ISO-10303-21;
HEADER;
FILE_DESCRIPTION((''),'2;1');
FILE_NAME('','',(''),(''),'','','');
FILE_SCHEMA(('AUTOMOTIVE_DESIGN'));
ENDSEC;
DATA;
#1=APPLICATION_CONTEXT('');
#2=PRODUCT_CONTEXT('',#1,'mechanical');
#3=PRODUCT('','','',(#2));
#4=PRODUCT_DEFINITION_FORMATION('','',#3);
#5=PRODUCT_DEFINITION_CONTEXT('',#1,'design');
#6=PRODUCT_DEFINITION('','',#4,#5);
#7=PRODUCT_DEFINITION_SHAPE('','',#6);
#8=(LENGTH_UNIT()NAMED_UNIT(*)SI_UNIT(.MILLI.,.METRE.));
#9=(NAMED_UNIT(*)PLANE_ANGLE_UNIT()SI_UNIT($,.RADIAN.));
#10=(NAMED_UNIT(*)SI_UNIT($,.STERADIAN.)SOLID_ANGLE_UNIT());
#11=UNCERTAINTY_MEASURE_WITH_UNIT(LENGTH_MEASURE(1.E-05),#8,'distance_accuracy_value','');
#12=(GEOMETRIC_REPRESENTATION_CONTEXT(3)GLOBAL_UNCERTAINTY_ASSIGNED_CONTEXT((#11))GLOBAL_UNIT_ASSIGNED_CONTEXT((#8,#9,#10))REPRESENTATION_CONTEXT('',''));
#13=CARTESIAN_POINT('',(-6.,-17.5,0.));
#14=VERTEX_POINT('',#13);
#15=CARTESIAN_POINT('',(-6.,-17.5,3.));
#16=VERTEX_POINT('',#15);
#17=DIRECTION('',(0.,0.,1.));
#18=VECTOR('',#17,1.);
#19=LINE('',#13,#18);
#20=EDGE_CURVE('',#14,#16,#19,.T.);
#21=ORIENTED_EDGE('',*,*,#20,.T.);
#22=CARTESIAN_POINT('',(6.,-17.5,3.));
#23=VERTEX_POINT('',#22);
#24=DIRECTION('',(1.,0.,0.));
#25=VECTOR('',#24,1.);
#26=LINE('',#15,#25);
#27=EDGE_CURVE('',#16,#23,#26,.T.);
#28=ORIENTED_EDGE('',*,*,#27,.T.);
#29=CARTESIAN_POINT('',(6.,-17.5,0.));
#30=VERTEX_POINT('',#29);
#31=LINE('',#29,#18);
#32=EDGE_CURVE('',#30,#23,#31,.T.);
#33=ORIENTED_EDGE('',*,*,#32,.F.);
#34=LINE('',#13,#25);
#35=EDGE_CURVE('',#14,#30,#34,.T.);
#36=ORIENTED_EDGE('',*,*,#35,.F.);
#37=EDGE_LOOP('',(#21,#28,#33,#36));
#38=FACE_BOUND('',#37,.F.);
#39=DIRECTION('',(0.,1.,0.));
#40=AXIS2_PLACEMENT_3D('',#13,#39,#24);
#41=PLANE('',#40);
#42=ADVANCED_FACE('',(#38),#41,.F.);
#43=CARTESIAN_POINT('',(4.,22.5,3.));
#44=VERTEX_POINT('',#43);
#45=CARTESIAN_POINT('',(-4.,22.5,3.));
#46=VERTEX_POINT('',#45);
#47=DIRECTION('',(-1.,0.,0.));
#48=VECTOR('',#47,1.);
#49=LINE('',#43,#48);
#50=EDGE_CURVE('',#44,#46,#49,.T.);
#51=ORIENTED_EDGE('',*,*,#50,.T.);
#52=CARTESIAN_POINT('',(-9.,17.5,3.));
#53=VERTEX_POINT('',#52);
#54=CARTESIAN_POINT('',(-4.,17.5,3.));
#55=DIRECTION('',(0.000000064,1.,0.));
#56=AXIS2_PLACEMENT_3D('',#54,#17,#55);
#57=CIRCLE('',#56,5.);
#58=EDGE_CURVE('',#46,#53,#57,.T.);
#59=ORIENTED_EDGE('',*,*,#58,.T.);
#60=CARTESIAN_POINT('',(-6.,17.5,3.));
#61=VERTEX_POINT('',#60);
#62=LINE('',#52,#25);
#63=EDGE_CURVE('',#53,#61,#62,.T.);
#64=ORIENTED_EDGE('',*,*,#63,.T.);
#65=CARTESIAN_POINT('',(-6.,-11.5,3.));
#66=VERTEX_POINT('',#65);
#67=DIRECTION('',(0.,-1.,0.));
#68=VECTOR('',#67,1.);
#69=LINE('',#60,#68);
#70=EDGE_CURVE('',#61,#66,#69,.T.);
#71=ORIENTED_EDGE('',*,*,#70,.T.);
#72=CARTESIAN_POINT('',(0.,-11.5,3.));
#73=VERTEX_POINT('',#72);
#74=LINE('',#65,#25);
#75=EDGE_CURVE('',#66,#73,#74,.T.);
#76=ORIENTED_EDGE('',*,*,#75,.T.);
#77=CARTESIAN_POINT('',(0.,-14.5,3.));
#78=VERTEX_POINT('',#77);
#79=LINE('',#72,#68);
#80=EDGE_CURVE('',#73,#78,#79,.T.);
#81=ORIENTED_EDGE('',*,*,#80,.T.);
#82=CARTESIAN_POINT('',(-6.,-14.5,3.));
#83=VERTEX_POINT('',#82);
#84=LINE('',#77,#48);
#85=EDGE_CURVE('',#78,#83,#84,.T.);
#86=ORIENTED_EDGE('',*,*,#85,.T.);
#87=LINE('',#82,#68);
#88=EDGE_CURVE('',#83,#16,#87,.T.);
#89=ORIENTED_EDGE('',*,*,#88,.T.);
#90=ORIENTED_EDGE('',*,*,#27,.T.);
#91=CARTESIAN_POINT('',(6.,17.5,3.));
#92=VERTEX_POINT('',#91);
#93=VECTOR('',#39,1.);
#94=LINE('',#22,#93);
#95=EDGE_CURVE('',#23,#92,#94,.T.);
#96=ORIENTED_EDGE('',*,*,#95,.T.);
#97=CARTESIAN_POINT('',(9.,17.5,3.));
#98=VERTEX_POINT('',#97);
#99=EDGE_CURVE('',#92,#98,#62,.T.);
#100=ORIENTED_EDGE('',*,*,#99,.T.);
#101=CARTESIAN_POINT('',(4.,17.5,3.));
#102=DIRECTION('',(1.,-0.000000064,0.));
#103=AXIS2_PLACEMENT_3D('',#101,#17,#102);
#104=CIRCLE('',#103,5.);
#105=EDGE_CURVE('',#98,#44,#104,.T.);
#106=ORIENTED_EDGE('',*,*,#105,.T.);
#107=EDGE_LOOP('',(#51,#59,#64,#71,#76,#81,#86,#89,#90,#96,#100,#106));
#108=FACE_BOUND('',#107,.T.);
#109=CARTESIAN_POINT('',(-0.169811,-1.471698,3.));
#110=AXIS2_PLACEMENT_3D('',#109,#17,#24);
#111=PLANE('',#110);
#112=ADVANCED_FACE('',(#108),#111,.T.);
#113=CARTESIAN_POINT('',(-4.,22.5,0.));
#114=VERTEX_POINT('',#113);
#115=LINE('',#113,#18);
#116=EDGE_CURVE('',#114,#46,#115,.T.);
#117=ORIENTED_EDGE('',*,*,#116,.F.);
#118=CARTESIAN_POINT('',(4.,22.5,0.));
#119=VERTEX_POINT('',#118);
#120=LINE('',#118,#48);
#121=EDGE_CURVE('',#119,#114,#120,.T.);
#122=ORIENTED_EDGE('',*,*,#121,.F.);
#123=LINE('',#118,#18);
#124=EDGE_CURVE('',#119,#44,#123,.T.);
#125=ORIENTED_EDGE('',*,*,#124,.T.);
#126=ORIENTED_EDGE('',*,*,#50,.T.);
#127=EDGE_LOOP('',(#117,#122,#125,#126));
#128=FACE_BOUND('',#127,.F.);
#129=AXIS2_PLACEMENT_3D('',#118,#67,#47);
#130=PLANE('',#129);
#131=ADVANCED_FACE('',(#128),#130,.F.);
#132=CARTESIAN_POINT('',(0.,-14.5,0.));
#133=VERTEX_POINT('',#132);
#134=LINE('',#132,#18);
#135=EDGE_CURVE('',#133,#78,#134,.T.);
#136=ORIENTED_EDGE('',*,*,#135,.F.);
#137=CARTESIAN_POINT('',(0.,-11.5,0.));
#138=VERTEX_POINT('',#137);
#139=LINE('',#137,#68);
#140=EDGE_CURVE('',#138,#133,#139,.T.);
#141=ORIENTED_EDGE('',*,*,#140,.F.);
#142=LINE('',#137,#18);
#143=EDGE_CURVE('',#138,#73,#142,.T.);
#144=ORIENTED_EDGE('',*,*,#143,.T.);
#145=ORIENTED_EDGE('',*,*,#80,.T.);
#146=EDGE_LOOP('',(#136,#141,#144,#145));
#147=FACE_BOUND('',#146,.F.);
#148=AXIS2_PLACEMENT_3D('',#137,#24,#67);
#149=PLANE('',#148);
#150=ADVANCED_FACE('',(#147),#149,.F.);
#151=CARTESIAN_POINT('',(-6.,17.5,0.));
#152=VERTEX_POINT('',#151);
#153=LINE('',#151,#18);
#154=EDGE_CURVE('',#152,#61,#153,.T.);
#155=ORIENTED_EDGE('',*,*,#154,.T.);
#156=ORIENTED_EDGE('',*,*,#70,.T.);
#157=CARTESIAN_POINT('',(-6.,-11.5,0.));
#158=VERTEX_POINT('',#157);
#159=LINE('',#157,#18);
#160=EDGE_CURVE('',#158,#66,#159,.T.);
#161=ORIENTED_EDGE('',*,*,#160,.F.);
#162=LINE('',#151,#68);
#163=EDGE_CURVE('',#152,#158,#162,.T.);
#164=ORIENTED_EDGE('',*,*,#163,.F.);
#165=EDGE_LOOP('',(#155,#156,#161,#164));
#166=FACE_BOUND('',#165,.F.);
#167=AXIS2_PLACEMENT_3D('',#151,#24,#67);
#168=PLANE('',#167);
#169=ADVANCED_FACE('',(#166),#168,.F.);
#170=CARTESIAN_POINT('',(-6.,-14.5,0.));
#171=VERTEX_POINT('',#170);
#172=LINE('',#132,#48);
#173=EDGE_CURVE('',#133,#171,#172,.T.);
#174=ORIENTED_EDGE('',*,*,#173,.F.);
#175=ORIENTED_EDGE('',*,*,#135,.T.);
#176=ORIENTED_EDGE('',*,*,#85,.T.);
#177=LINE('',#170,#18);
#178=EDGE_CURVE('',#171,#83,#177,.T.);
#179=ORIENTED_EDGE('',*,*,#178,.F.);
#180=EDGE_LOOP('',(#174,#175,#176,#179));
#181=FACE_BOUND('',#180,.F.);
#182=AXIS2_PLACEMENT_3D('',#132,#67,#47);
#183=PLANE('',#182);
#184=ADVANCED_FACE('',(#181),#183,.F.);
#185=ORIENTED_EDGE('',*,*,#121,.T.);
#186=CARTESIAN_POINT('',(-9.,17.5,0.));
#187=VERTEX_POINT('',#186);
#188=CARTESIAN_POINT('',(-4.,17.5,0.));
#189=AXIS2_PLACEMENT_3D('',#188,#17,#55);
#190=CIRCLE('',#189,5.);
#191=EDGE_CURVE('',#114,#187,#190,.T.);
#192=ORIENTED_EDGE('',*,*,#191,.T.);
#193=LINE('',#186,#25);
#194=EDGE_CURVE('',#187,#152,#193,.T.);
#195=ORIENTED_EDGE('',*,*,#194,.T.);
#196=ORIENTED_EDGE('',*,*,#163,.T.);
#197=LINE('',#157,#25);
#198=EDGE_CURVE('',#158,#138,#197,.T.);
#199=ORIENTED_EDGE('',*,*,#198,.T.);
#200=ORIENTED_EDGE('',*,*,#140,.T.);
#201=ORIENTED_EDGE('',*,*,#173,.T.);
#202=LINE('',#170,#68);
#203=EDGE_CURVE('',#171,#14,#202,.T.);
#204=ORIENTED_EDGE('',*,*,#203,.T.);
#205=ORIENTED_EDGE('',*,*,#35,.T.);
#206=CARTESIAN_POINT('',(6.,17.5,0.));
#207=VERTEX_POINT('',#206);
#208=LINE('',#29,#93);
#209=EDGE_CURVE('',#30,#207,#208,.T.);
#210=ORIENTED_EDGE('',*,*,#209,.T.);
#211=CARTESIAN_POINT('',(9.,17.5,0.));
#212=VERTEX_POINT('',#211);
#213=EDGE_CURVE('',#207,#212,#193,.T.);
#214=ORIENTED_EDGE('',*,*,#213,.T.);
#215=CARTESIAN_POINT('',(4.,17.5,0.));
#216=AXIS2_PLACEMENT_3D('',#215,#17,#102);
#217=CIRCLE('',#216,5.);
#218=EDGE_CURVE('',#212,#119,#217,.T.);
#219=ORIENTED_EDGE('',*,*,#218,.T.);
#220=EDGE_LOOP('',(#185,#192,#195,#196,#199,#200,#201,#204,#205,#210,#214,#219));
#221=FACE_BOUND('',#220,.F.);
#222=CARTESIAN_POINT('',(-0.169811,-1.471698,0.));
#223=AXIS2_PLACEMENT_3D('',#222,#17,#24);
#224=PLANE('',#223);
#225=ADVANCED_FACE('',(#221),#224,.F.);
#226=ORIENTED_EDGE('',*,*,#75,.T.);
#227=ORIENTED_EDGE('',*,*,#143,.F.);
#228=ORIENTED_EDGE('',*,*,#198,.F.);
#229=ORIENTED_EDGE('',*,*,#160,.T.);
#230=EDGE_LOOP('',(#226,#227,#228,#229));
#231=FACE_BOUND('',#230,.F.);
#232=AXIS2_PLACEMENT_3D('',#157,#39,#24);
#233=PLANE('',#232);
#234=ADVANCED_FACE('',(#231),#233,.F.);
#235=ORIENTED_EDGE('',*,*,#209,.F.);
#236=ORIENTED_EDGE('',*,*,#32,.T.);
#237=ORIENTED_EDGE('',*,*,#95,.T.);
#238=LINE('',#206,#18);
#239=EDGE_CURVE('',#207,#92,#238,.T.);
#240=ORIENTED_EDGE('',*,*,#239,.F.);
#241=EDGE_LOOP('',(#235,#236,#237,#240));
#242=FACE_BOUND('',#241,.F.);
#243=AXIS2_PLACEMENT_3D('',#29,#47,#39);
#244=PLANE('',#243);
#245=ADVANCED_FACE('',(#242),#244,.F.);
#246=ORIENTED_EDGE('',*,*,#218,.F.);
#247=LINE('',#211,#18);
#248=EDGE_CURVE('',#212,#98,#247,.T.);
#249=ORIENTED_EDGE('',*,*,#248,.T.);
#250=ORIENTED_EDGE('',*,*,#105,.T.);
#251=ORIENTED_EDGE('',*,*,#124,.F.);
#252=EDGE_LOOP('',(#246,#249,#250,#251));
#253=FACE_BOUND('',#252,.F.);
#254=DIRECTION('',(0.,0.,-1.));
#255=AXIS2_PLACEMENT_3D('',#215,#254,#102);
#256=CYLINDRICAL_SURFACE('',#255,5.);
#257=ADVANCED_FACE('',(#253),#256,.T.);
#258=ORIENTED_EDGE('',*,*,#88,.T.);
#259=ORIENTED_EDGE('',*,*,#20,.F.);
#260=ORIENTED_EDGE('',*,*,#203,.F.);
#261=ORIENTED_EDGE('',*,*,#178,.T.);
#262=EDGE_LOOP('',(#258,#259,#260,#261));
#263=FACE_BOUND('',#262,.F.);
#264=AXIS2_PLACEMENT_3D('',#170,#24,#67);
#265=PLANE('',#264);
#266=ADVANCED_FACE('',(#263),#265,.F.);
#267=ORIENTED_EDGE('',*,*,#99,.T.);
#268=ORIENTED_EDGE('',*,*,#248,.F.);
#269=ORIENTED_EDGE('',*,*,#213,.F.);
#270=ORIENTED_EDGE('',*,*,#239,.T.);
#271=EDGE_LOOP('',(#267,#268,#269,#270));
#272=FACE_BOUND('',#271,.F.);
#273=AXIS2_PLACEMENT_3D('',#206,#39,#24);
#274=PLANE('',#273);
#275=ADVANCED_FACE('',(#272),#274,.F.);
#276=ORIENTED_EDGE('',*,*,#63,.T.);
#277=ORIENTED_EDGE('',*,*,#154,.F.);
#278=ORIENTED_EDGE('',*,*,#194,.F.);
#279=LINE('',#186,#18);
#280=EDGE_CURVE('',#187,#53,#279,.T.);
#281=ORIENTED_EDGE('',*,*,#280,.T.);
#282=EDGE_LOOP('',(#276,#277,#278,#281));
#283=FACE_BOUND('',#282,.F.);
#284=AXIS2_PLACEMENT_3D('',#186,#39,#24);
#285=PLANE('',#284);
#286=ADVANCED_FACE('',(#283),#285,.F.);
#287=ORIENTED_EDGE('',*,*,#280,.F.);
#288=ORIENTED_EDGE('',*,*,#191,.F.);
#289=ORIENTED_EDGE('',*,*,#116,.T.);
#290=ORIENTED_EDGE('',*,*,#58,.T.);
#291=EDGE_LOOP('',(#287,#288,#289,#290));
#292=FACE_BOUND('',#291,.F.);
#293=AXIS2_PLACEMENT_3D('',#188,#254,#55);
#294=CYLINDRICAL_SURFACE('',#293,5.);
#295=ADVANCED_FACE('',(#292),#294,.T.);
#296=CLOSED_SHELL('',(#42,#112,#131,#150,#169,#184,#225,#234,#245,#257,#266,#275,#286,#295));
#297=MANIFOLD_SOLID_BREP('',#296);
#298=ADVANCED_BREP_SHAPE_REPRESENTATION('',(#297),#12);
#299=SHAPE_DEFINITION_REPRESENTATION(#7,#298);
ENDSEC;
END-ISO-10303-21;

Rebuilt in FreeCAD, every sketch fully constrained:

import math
import FreeCAD as App
import Part
import Sketcher

V = App.Vector

doc = App.newDocument("Part")
params = doc.addObject("Spreadsheet::Sheet", "Params")
for row, (alias, value) in enumerate([
    ("sketch1_radius", "5 mm"),
    ("sketch1_width", "6 mm"),
    ("sketch1_width2", "3 mm"),
    ("sketch1_height", "29 mm"),
    ("pad1_length", "3 mm"),
], start=1):
    params.set(f"A{row}", alias)
    params.set(f"B{row}", "=" + value)
    params.setAlias(f"B{row}", alias)

body = doc.addObject("PartDesign::Body", "Body")

# Sketch on XY plane
sketch1 = body.newObject("Sketcher::SketchObject", "Sketch")
sketch1.AttachmentSupport = (doc.getObject("XY_Plane"), [""])
sketch1.MapMode = "FlatFace"
sketch1.addGeometry(Part.LineSegment(V(-6, 17.5, 0), V(-6, -11.5, 0)), False)
sketch1.addGeometry(Part.LineSegment(V(-6, -11.5, 0), V(0, -11.5, 0)), False)
sketch1.addGeometry(Part.LineSegment(V(0, -11.5, 0), V(0, -14.5, 0)), False)
sketch1.addGeometry(Part.LineSegment(V(0, -14.5, 0), V(-6, -14.5, 0)), False)
sketch1.addGeometry(Part.LineSegment(V(-6, -14.5, 0), V(-6, -17.5, 0)), False)
sketch1.addGeometry(Part.LineSegment(V(-6, -17.5, 0), V(6, -17.5, 0)), False)
sketch1.addGeometry(Part.LineSegment(V(6, -17.5, 0), V(6, 17.5, 0)), False)
sketch1.addGeometry(Part.LineSegment(V(6, 17.5, 0), V(9, 17.5, 0)), False)
sketch1.addGeometry(Part.ArcOfCircle(Part.Circle(V(4, 17.5, 0), V(0, 0, 1), 5), math.radians(0), math.radians(90)), False)
sketch1.addGeometry(Part.LineSegment(V(4, 22.5, 0), V(-4, 22.5, 0)), False)
sketch1.addGeometry(Part.ArcOfCircle(Part.Circle(V(-4, 17.5, 0), V(0, 0, 1), 5), math.radians(90), math.radians(180)), False)
sketch1.addGeometry(Part.LineSegment(V(-9, 17.5, 0), V(-6, 17.5, 0)), False)
sketch1.addConstraint(Sketcher.Constraint("Coincident", 0, 2, 1, 1))
sketch1.addConstraint(Sketcher.Constraint("Coincident", 1, 2, 2, 1))
sketch1.addConstraint(Sketcher.Constraint("Coincident", 2, 2, 3, 1))
sketch1.addConstraint(Sketcher.Constraint("Coincident", 3, 2, 4, 1))
sketch1.addConstraint(Sketcher.Constraint("Coincident", 4, 2, 5, 1))
sketch1.addConstraint(Sketcher.Constraint("Coincident", 5, 2, 6, 1))
sketch1.addConstraint(Sketcher.Constraint("Coincident", 6, 2, 7, 1))
sketch1.addConstraint(Sketcher.Constraint("Coincident", 7, 2, 8, 1))
sketch1.addConstraint(Sketcher.Constraint("Tangent", 8, 2, 9, 1))
sketch1.addConstraint(Sketcher.Constraint("Tangent", 9, 2, 10, 1))
sketch1.addConstraint(Sketcher.Constraint("Coincident", 10, 2, 11, 1))
sketch1.addConstraint(Sketcher.Constraint("Coincident", 11, 2, 0, 1))
sketch1.addConstraint(Sketcher.Constraint("Vertical", 0))
sketch1.addConstraint(Sketcher.Constraint("Horizontal", 1))
sketch1.addConstraint(Sketcher.Constraint("Vertical", 2))
sketch1.addConstraint(Sketcher.Constraint("Horizontal", 3))
sketch1.addConstraint(Sketcher.Constraint("Vertical", 4))
sketch1.addConstraint(Sketcher.Constraint("Horizontal", 5))
sketch1.addConstraint(Sketcher.Constraint("Vertical", 6))
sketch1.addConstraint(Sketcher.Constraint("Horizontal", 7))
sketch1.addConstraint(Sketcher.Constraint("Horizontal", 9))
sketch1.addConstraint(Sketcher.Constraint("Horizontal", 11))
sketch1.addConstraint(Sketcher.Constraint("Equal", 8, 10))
sketch1.addConstraint(Sketcher.Constraint("Symmetric", 4, 2, 6, 2, -1, 1))
sketch1.addConstraint(Sketcher.Constraint("Symmetric", 5, 2, 11, 2, -1, 1))
sketch1.addConstraint(Sketcher.Constraint("PointOnObject", 1, 2, -2))
sketch1.addConstraint(Sketcher.Constraint("Horizontal", 10, 3, 6, 2))
sketch1.addConstraint(Sketcher.Constraint("Equal", 7, 11))
sketch1.addConstraint(Sketcher.Constraint("Equal", 11, 2))
sketch1.addConstraint(Sketcher.Constraint("Equal", 2, 4))
sketch1.addConstraint(Sketcher.Constraint("Radius", 8, 5.0))
sketch1.addConstraint(Sketcher.Constraint("DistanceX", 1, 1, 1, 2, 6.0))
sketch1.addConstraint(Sketcher.Constraint("DistanceX", 7, 1, 7, 2, 3.0))
sketch1.addConstraint(Sketcher.Constraint("DistanceY", 0, 2, 0, 1, 29.0))
sketch1.setExpression("Constraints[30]", "Params.sketch1_radius")
sketch1.setExpression("Constraints[31]", "Params.sketch1_width")
sketch1.setExpression("Constraints[32]", "Params.sketch1_width2")
sketch1.setExpression("Constraints[33]", "Params.sketch1_height")
pad1 = body.newObject("PartDesign::Pad", "Pad")
pad1.Profile = sketch1
pad1.setExpression("Length", "Params.pad1_length")

doc.recompute()
